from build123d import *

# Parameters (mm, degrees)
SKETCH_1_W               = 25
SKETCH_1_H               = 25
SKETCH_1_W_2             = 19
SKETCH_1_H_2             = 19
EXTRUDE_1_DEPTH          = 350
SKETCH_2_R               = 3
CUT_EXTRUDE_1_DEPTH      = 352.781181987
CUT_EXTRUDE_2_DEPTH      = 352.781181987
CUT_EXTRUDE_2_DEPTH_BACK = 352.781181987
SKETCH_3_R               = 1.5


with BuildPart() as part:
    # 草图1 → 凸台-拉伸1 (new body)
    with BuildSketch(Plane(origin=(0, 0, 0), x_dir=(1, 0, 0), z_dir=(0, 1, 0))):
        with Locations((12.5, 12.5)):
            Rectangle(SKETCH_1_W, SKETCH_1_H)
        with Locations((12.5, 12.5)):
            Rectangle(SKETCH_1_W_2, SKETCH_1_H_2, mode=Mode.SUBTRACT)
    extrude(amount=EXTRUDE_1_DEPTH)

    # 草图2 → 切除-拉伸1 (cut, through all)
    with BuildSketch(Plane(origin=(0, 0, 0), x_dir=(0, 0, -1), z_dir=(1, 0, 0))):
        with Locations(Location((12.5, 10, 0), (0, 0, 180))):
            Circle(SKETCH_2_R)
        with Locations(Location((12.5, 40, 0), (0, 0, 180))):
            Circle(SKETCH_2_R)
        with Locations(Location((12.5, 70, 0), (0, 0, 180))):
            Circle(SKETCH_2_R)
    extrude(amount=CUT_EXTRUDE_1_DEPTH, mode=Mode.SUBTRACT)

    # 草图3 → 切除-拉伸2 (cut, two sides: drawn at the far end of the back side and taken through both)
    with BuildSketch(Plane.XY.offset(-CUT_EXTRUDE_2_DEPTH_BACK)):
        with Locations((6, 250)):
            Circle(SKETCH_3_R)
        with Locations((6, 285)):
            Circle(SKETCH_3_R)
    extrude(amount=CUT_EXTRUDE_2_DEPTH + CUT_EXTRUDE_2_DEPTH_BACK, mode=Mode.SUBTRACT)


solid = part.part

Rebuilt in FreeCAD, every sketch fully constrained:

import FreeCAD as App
import Part
import Sketcher

V = App.Vector

doc = App.newDocument("Part")
body = doc.addObject("PartDesign::Body", "Body")

sketch1 = doc.addObject("Sketcher::SketchObject", "Sketch")
body.addObject(sketch1)
sketch1.AttachmentSupport = (doc.XZ_Plane, [""])
sketch1.MapMode = "FlatFace"
sketch1.addGeometry(Part.LineSegment(V(0, -25, 0), V(0, 0, 0)), False)
sketch1.addGeometry(Part.LineSegment(V(0, 0, 0), V(25, 0, 0)), False)
sketch1.addGeometry(Part.LineSegment(V(25, 0, 0), V(25, -25, 0)), False)
sketch1.addGeometry(Part.LineSegment(V(25, -25, 0), V(0, -25, 0)), False)
sketch1.addGeometry(Part.LineSegment(V(22, -3, 0), V(3, -3, 0)), False)
sketch1.addGeometry(Part.LineSegment(V(3, -3, 0), V(3, -22, 0)), False)
sketch1.addGeometry(Part.LineSegment(V(3, -22, 0), V(22, -22, 0)), False)
sketch1.addGeometry(Part.LineSegment(V(22, -22, 0), V(22, -3, 0)), False)
sketch1.addConstraint(Sketcher.Constraint("Coincident", 0, 2, 1, 1))
sketch1.addConstraint(Sketcher.Constraint("Coincident", 1, 2, 2, 1))
sketch1.addConstraint(Sketcher.Constraint("Coincident", 2, 2, 3, 1))
sketch1.addConstraint(Sketcher.Constraint("Coincident", 3, 2, 0, 1))
sketch1.addConstraint(Sketcher.Constraint("Coincident", 4, 2, 5, 1))
sketch1.addConstraint(Sketcher.Constraint("Coincident", 5, 2, 6, 1))
sketch1.addConstraint(Sketcher.Constraint("Coincident", 6, 2, 7, 1))
sketch1.addConstraint(Sketcher.Constraint("Coincident", 7, 2, 4, 1))
sketch1.addConstraint(Sketcher.Constraint("Vertical", 0))
sketch1.addConstraint(Sketcher.Constraint("Horizontal", 1))
sketch1.addConstraint(Sketcher.Constraint("Vertical", 2))
sketch1.addConstraint(Sketcher.Constraint("Horizontal", 3))
sketch1.addConstraint(Sketcher.Constraint("Horizontal", 4))
sketch1.addConstraint(Sketcher.Constraint("Vertical", 5))
sketch1.addConstraint(Sketcher.Constraint("Horizontal", 6))
sketch1.addConstraint(Sketcher.Constraint("Vertical", 7))
sketch1.addConstraint(Sketcher.Constraint("Coincident", 0, 2, -1, 1))
sketch1.addConstraint(Sketcher.Constraint("Equal", 3, 0))
sketch1.addConstraint(Sketcher.Constraint("Equal", 6, 5))
sketch1.addConstraint(Sketcher.Constraint("DistanceX", 1, 1, 1, 2, 25.0))
sketch1.addConstraint(Sketcher.Constraint("DistanceX", 4, 2, 4, 1, 19.0))
sketch1.addConstraint(Sketcher.Constraint("DistanceX", -1, 1, 4, 2, 3.0))
sketch1.addConstraint(Sketcher.Constraint("DistanceY", 4, 2, -1, 1, 3.0))
pad1 = doc.addObject("PartDesign::Pad", "Pad")
body.addObject(pad1)
pad1.Profile = sketch1
pad1.Length = 350
pad1.Reversed = True

sketch2 = doc.addObject("Sketcher::SketchObject", "Sketch001")
body.addObject(sketch2)
sketch2.AttachmentSupport = (doc.YZ_Plane, [""])
sketch2.MapMode = "FlatFace"
sketch2.addGeometry(Part.Circle(V(10, -12.5, 0), V(0, 0, 1), 3), False)
sketch2.addGeometry(Part.Circle(V(40, -12.5, 0), V(0, 0, 1), 3), False)
sketch2.addGeometry(Part.Circle(V(70, -12.5, 0), V(0, 0, 1), 3), False)
sketch2.addConstraint(Sketcher.Constraint("Equal", 0, 1))
sketch2.addConstraint(Sketcher.Constraint("Equal", 1, 2))
sketch2.addConstraint(Sketcher.Constraint("Horizontal", 0, 3, 1, 3))
sketch2.addConstraint(Sketcher.Constraint("Horizontal", 1, 3, 2, 3))
sketch2.addConstraint(Sketcher.Constraint("Diameter", 0, 6.0))
sketch2.addConstraint(Sketcher.Constraint("DistanceX", -1, 1, 0, 3, 10.0))
sketch2.addConstraint(Sketcher.Constraint("DistanceX", -1, 1, 1, 3, 40.0))
sketch2.addConstraint(Sketcher.Constraint("DistanceX", -1, 1, 2, 3, 70.0))
sketch2.addConstraint(Sketcher.Constraint("DistanceY", 0, 3, -1, 1, 12.5))
pocket1 = doc.addObject("PartDesign::Pocket", "Pocket")
body.addObject(pocket1)
pocket1.Profile = sketch2
pocket1.Type = "ThroughAll"
pocket1.Reversed = True

sketch3 = doc.addObject("Sketcher::SketchObject", "Sketch002")
body.addObject(sketch3)
sketch3.AttachmentSupport = (doc.XY_Plane, [""])
sketch3.MapMode = "FlatFace"
sketch3.addGeometry(Part.Circle(V(6, 250, 0), V(0, 0, 1), 1.5), False)
sketch3.addGeometry(Part.Circle(V(6, 285, 0), V(0, 0, 1), 1.5), False)
sketch3.addConstraint(Sketcher.Constraint("Equal", 0, 1))
sketch3.addConstraint(Sketcher.Constraint("Vertical", 0, 3, 1, 3))
sketch3.addConstraint(Sketcher.Constraint("Diameter", 0, 3.0))
sketch3.addConstraint(Sketcher.Constraint("DistanceX", -1, 1, 0, 3, 6.0))
sketch3.addConstraint(Sketcher.Constraint("DistanceY", -1, 1, 0, 3, 250.0))
sketch3.addConstraint(Sketcher.Constraint("DistanceY", -1, 1, 1, 3, 285.0))
pocket2 = doc.addObject("PartDesign::Pocket", "Pocket001")
body.addObject(pocket2)
pocket2.Profile = sketch3
pocket2.Type = "ThroughAll"
pocket2.Midplane = True

doc.recompute()
